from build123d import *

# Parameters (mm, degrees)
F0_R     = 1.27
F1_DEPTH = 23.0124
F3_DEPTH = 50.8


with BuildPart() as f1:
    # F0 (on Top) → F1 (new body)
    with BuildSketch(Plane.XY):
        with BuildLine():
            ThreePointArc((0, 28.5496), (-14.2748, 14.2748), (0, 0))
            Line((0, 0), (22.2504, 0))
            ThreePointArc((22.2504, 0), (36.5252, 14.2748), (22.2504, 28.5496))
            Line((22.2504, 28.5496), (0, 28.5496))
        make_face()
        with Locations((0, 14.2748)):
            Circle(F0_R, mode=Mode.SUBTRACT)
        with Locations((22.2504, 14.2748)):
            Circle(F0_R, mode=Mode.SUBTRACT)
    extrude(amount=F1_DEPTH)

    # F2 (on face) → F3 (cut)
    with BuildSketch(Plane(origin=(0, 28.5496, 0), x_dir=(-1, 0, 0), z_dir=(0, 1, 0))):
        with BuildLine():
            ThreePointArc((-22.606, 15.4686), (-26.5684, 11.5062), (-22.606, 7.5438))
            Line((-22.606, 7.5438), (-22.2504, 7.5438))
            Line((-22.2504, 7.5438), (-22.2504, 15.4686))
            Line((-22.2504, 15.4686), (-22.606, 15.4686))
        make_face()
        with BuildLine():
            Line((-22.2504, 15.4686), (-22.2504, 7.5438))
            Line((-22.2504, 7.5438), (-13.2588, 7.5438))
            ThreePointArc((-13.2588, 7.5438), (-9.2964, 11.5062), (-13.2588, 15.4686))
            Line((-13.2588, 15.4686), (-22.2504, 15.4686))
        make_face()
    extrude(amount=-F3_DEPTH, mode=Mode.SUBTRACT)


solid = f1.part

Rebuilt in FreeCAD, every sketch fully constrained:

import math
import FreeCAD as App
import Part
import Sketcher

V = App.Vector
Q = App.Units.Quantity

doc = App.newDocument("Part")
body = doc.addObject("PartDesign::Body", "Body")

# Sketch on XY plane
sketch1 = body.newObject("Sketcher::SketchObject", "Sketch")
sketch1.AttachmentSupport = (doc.getObject("XY_Plane"), [""])
sketch1.MapMode = "FlatFace"
sketch1.addGeometry([
    Part.ArcOfCircle(Part.Circle(V(0, 14.2748, 0), V(0, 0, 1), 14.2748), math.radians(90), math.radians(270)),  # 0
    Part.LineSegment(V(0, 0, 0), V(22.2504, 0, 0)),  # 1
    Part.ArcOfCircle(Part.Circle(V(22.2504, 14.2748, 0), V(0, 0, 1), 14.2748), math.radians(-90), math.radians(90)),  # 2
    Part.LineSegment(V(22.2504, 28.5496, 0), V(0, 28.5496, 0)),  # 3
    Part.Circle(V(0, 14.2748, 0), V(0, 0, 1), 1.27),  # 4
    Part.Circle(V(22.2504, 14.2748, 0), V(0, 0, 1), 1.27),  # 5
], False)
sketch1.addConstraint([
    Sketcher.Constraint("Tangent", 0, 2, 1, 1),
    Sketcher.Constraint("Tangent", 1, 2, 2, 1),
    Sketcher.Constraint("Tangent", 2, 2, 3, 1),
    Sketcher.Constraint("Tangent", 3, 2, 0, 1),
    Sketcher.Constraint("Horizontal", 1),
    Sketcher.Constraint("Horizontal", 3),
    Sketcher.Constraint("Coincident", 0, 2, -1, 1),
    Sketcher.Constraint("Coincident", 4, 3, 0, 3),
    Sketcher.Constraint("Coincident", 5, 3, 2, 3),
    Sketcher.Constraint("Equal", 4, 5),
    Sketcher.Constraint("Diameter", 4, Q("0.1 in")),
    Sketcher.Constraint("Radius", 0, Q("0.562 in")),
    Sketcher.Constraint("DistanceX", 1, 1, 1, 2, Q("0.876 in")),
])
pad1 = body.newObject("PartDesign::Pad", "Pad")
pad1.Profile = sketch1
pad1.Length = Q("0.906 in")

# Sketch on XZ plane
sketch2 = body.newObject("Sketcher::SketchObject", "Sketch001")
sketch2.AttachmentSupport = (doc.getObject("XZ_Plane"), [""])
sketch2.MapMode = "FlatFace"
sketch2.AttachmentOffset = App.Placement(V(0, 0, -1.124 * 25.4), App.Rotation())
sketch2.addGeometry([
    Part.ArcOfCircle(Part.Circle(V(22.606, 11.5062, 0), V(0, 0, 1), 3.9624), math.radians(-90), math.radians(90)),
    Part.LineSegment(V(22.606, 7.5438, 0), V(13.2588, 7.5438, 0)),
    Part.ArcOfCircle(Part.Circle(V(13.2588, 11.5062, 0), V(0, 0, 1), 3.9624), math.radians(90), math.radians(270)),
    Part.LineSegment(V(13.2588, 15.4686, 0), V(22.606, 15.4686, 0)),
], False)
sketch2.addConstraint([
    Sketcher.Constraint("Tangent", 0, 1, 1, 1),
    Sketcher.Constraint("Tangent", 1, 2, 2, 2),
    Sketcher.Constraint("Tangent", 2, 1, 3, 1),
    Sketcher.Constraint("Tangent", 3, 2, 0, 2),
    Sketcher.Constraint("Horizontal", 1),
    Sketcher.Constraint("Horizontal", 3),
    Sketcher.Constraint("Radius", 0, Q("0.156 in")),
    Sketcher.Constraint("DistanceX", 1, 2, 1, 1, Q("0.368 in")),
    Sketcher.Constraint("DistanceX", -1, 1, 0, 3, Q("0.89 in")),
    Sketcher.Constraint("DistanceY", -1, 1, 0, 3, Q("0.453 in")),
])
pocket1 = body.newObject("PartDesign::Pocket", "Pocket")
pocket1.Profile = sketch2
pocket1.Length = Q("2 in")
pocket1.Reversed = True

doc.recompute()
